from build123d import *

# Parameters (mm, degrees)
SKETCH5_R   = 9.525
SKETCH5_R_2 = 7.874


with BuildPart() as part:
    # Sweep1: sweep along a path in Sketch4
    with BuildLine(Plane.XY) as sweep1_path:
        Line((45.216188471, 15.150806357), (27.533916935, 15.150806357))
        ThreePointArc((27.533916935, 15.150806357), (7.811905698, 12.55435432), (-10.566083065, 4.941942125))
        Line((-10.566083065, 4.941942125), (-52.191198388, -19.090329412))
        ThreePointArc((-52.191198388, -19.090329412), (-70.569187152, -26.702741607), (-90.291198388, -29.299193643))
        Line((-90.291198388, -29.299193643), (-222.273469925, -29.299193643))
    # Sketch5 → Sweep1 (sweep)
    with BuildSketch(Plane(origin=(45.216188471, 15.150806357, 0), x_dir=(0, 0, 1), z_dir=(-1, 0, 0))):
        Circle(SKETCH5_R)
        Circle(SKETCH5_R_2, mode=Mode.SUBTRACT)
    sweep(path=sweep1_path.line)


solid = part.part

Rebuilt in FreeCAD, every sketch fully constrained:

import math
import FreeCAD as App
import Part
import Sketcher
Q = App.Units.Quantity

doc = App.newDocument("Part")
body = doc.addObject("PartDesign::Body", "Body")

# Sketch on YZ plane
sketch1 = body.newObject("Sketcher::SketchObject", "Sketch")
sketch1.AttachmentSupport = (doc.getObject("YZ_Plane"), [""])
sketch1.MapMode = "FlatFace"
sketch1.AttachmentOffset = App.Placement(App.Vector(0, 0, 45.216188), App.Rotation())
sketch1.addGeometry(Part.Circle(App.Vector(15, 0, 0), App.Vector(0, 0, 1), 10), False)
sketch1.addGeometry(Part.Circle(App.Vector(15, 0, 0), App.Vector(0, 0, 1), 8), False)
sketch1.addConstraint(Sketcher.Constraint("Coincident", 1, 3, 0, 3))
sketch1.addConstraint(Sketcher.Constraint("PointOnObject", 0, 3, -1))
sketch1.addConstraint(Sketcher.Constraint("Diameter", 0, Q("0.75 in")))
sketch1.addConstraint(Sketcher.Constraint("Diameter", 1, Q("0.62 in")))
sketch1.addConstraint(Sketcher.Constraint("DistanceX", -1, 1, 0, 3, 15.150806))

# Sketch on XY plane
sketch2 = body.newObject("Sketcher::SketchObject", "Sketch001")
sketch2.AttachmentSupport = (doc.getObject("XY_Plane"), [""])
sketch2.MapMode = "FlatFace"
sketch2.addGeometry(Part.LineSegment(App.Vector(45, 15, 0), App.Vector(28, 15, 0)), False)
sketch2.addGeometry(Part.ArcOfCircle(Part.Circle(App.Vector(28, -61, 0), App.Vector(0, 0, 1), 76), math.radians(90), math.radians(120)), False)
sketch2.addGeometry(Part.LineSegment(App.Vector(-11, 5, 0), App.Vector(-52, -19, 0)), False)
sketch2.addGeometry(Part.ArcOfCircle(Part.Circle(App.Vector(-90, 47, 0), App.Vector(0, 0, 1), 76), math.radians(-90), math.radians(-60)), False)
sketch2.addGeometry(Part.LineSegment(App.Vector(-90, -29, 0), App.Vector(-222, -29, 0)), False)
sketch2.addConstraint(Sketcher.Constraint("Tangent", 0, 2, 1, 1))
sketch2.addConstraint(Sketcher.Constraint("Tangent", 1, 2, 2, 1))
sketch2.addConstraint(Sketcher.Constraint("Tangent", 2, 2, 3, 2))
sketch2.addConstraint(Sketcher.Constraint("Tangent", 3, 1, 4, 1))
sketch2.addConstraint(Sketcher.Constraint("Horizontal", 0))
sketch2.addConstraint(Sketcher.Constraint("Horizontal", 4))
sketch2.addConstraint(Sketcher.Constraint("Equal", 1, 3))
sketch2.addConstraint(Sketcher.Constraint("Radius", 1, Q("3 in")))
sketch2.addConstraint(Sketcher.Constraint("Angle", 2, Q("-150 deg")))
sketch2.addConstraint(Sketcher.Constraint("DistanceY", 1, 3, 3, 3, Q("4.25 in")))
sketch2.addConstraint(Sketcher.Constraint("DistanceX", 0, 2, 0, 1, 17.682272))
sketch2.addConstraint(Sketcher.Constraint("DistanceX", 4, 2, 4, 1, 131.982272))
sketch2.addConstraint(Sketcher.Constraint("DistanceX", 3, 3, -1, 1, 90.291198))
sketch2.addConstraint(Sketcher.Constraint("DistanceY", 2, 2, -1, 1, 19.090329))
doc.recompute()

additivepipe = body.newObject("PartDesign::AdditivePipe", "AdditivePipe")
additivepipe.Profile = sketch1
additivepipe.Spine = (sketch2, ["Edge1", "Edge2", "Edge3", "Edge4", "Edge5"])

doc.recompute()
